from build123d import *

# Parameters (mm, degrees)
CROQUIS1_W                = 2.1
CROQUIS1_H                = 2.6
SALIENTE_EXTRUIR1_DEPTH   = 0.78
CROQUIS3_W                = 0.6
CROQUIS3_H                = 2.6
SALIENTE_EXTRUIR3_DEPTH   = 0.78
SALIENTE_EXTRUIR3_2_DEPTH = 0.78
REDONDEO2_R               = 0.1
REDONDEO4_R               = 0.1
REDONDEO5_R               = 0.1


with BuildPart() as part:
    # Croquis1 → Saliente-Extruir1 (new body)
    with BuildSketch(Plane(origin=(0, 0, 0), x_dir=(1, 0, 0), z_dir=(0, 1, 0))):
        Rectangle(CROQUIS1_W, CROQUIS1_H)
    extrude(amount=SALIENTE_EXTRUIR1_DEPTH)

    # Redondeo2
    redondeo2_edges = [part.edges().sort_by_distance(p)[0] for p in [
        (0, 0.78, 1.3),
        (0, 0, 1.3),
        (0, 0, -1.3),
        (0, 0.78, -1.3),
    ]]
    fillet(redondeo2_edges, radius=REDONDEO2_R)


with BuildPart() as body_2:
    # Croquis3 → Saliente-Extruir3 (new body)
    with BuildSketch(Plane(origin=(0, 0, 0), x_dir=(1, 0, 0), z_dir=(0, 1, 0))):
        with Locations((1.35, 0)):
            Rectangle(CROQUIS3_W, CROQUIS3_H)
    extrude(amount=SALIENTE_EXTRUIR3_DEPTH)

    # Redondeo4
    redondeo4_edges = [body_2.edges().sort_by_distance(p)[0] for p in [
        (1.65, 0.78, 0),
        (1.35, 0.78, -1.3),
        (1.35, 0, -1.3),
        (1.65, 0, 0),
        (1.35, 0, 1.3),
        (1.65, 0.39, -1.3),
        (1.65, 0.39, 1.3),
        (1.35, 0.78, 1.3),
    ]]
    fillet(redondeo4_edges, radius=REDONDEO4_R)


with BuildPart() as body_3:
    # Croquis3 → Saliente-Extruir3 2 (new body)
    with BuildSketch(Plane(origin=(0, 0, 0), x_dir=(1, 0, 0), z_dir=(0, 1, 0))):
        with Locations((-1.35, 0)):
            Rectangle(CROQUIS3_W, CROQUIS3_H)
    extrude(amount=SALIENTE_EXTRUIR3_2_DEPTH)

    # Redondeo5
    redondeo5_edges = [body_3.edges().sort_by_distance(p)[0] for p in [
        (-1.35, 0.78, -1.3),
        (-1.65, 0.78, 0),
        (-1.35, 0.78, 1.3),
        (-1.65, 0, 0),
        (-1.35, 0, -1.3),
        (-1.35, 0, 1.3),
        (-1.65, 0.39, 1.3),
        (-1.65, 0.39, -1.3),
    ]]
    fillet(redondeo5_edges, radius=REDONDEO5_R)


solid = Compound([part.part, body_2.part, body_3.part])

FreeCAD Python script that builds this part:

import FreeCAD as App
import Part
import Sketcher
from FreeCAD import Vector
Q = App.Units.Quantity


def edges_at(feature, points):
    """Names of the edges that pass closest to the given points."""
    edges = feature.Shape.Edges
    near = lambda p: min(range(len(edges)), key=lambda i: edges[i].distToShape(Part.Vertex(*p))[0])
    return sorted({f"Edge{near(p) + 1}" for p in points})

doc = App.newDocument("Part")
body = doc.addObject("PartDesign::Body", "Body")

sketch1 = body.newObject("Sketcher::SketchObject", "Sketch")
sketch1.AttachmentSupport = (doc.getObject("XZ_Plane"), [""])
sketch1.MapMode = "FlatFace"
sketch1.addGeometry(Part.LineSegment(Vector(-1.1, -1.3, 0), Vector(-1.1, 1.3, 0)), False)
sketch1.addGeometry(Part.LineSegment(Vector(-1.1, 1.3, 0), Vector(1.1, 1.3, 0)), False)
sketch1.addGeometry(Part.LineSegment(Vector(1.1, 1.3, 0), Vector(1.1, -1.3, 0)), False)
sketch1.addGeometry(Part.LineSegment(Vector(1.1, -1.3, 0), Vector(-1.1, -1.3, 0)), False)
sketch1.addConstraint(Sketcher.Constraint("Coincident", 0, 2, 1, 1))
sketch1.addConstraint(Sketcher.Constraint("Coincident", 1, 2, 2, 1))
sketch1.addConstraint(Sketcher.Constraint("Coincident", 2, 2, 3, 1))
sketch1.addConstraint(Sketcher.Constraint("Coincident", 3, 2, 0, 1))
sketch1.addConstraint(Sketcher.Constraint("Vertical", 0))
sketch1.addConstraint(Sketcher.Constraint("Horizontal", 1))
sketch1.addConstraint(Sketcher.Constraint("Vertical", 2))
sketch1.addConstraint(Sketcher.Constraint("Horizontal", 3))
sketch1.addConstraint(Sketcher.Constraint("Symmetric", 0, 2, 2, 2, -1, 1))
sketch1.addConstraint(Sketcher.Constraint("DistanceX", 1, 1, 1, 2, Q("2.1 mm")))
sketch1.addConstraint(Sketcher.Constraint("DistanceY", 0, 1, 0, 2, Q("2.6 mm")))
pad1 = body.newObject("PartDesign::Pad", "Pad")
pad1.Profile = sketch1
pad1.Length = 0.78
pad1.Reversed = True
doc.recompute()

fillet = body.newObject("PartDesign::Fillet", "Fillet")
fillet.Base = (pad1, edges_at(pad1, [
    (0, 0.78, 1.3),
    (0, 0, 1.3),
    (0, 0, -1.3),
    (0, 0.78, -1.3),
]))
fillet.Radius = 0.1
body2 = doc.addObject("PartDesign::Body", "Body001")

sketch2 = body2.newObject("Sketcher::SketchObject", "Sketch001")
sketch2.AttachmentSupport = (doc.getObject("XZ_Plane001"), [""])
sketch2.MapMode = "FlatFace"
sketch2.addGeometry(Part.LineSegment(Vector(1.1, -1.3, 0), Vector(1.1, 1.3, 0)), False)
sketch2.addGeometry(Part.LineSegment(Vector(1.1, 1.3, 0), Vector(1.6, 1.3, 0)), False)
sketch2.addGeometry(Part.LineSegment(Vector(1.6, 1.3, 0), Vector(1.6, -1.3, 0)), False)
sketch2.addGeometry(Part.LineSegment(Vector(1.6, -1.3, 0), Vector(1.1, -1.3, 0)), False)
sketch2.addConstraint(Sketcher.Constraint("Coincident", 0, 2, 1, 1))
sketch2.addConstraint(Sketcher.Constraint("Coincident", 1, 2, 2, 1))
sketch2.addConstraint(Sketcher.Constraint("Coincident", 2, 2, 3, 1))
sketch2.addConstraint(Sketcher.Constraint("Coincident", 3, 2, 0, 1))
sketch2.addConstraint(Sketcher.Constraint("Vertical", 0))
sketch2.addConstraint(Sketcher.Constraint("Horizontal", 1))
sketch2.addConstraint(Sketcher.Constraint("Vertical", 2))
sketch2.addConstraint(Sketcher.Constraint("Horizontal", 3))
sketch2.addConstraint(Sketcher.Constraint("DistanceX", 1, 1, 1, 2, Q("0.6 mm")))
sketch2.addConstraint(Sketcher.Constraint("DistanceY", 0, 1, 0, 2, Q("2.6 mm")))
sketch2.addConstraint(Sketcher.Constraint("DistanceY", -1, 1, 0, 2, Q("1.3 mm")))
sketch2.addConstraint(Sketcher.Constraint("DistanceX", -1, 1, 0, 2, Q("1.05 mm")))
pad2 = body2.newObject("PartDesign::Pad", "Pad001")
pad2.Profile = sketch2
pad2.Length = 0.78
pad2.Reversed = True
doc.recompute()

fillet2 = body2.newObject("PartDesign::Fillet", "Fillet001")
fillet2.Base = (pad2, edges_at(pad2, [
    (1.65, 0.78, 0),
    (1.35, 0.78, -1.3),
    (1.35, 0, -1.3),
    (1.65, 0, 0),
    (1.35, 0, 1.3),
    (1.65, 0.39, -1.3),
    (1.65, 0.39, 1.3),
    (1.35, 0.78, 1.3),
]))
fillet2.Radius = 0.1
body3 = doc.addObject("PartDesign::Body", "Body002")

sketch3 = body3.newObject("Sketcher::SketchObject", "Sketch002")
sketch3.AttachmentSupport = (doc.getObject("XZ_Plane002"), [""])
sketch3.MapMode = "FlatFace"
sketch3.addGeometry(Part.LineSegment(Vector(-1.6, -1.3, 0), Vector(-1.6, 1.3, 0)), False)
sketch3.addGeometry(Part.LineSegment(Vector(-1.6, 1.3, 0), Vector(-1.1, 1.3, 0)), False)
sketch3.addGeometry(Part.LineSegment(Vector(-1.1, 1.3, 0), Vector(-1.1, -1.3, 0)), False)
sketch3.addGeometry(Part.LineSegment(Vector(-1.1, -1.3, 0), Vector(-1.6, -1.3, 0)), False)
sketch3.addConstraint(Sketcher.Constraint("Coincident", 0, 2, 1, 1))
sketch3.addConstraint(Sketcher.Constraint("Coincident", 1, 2, 2, 1))
sketch3.addConstraint(Sketcher.Constraint("Coincident", 2, 2, 3, 1))
sketch3.addConstraint(Sketcher.Constraint("Coincident", 3, 2, 0, 1))
sketch3.addConstraint(Sketcher.Constraint("Vertical", 0))
sketch3.addConstraint(Sketcher.Constraint("Horizontal", 1))
sketch3.addConstraint(Sketcher.Constraint("Vertical", 2))
sketch3.addConstraint(Sketcher.Constraint("Horizontal", 3))
sketch3.addConstraint(Sketcher.Constraint("DistanceX", 1, 1, 1, 2, Q("0.6 mm")))
sketch3.addConstraint(Sketcher.Constraint("DistanceY", 0, 1, 0, 2, Q("2.6 mm")))
sketch3.addConstraint(Sketcher.Constraint("DistanceY", -1, 1, 0, 2, Q("1.3 mm")))
sketch3.addConstraint(Sketcher.Constraint("DistanceX", 0, 2, -1, 1, Q("1.65 mm")))
pad3 = body3.newObject("PartDesign::Pad", "Pad002")
pad3.Profile = sketch3
pad3.Length = 0.78
pad3.Reversed = True
doc.recompute()

fillet3 = body3.newObject("PartDesign::Fillet", "Fillet002")
fillet3.Base = (pad3, edges_at(pad3, [
    (-1.35, 0.78, -1.3),
    (-1.65, 0.78, 0),
    (-1.35, 0.78, 1.3),
    (-1.65, 0, 0),
    (-1.35, 0, -1.3),
    (-1.35, 0, 1.3),
    (-1.65, 0.39, 1.3),
    (-1.65, 0.39, -1.3),
]))
fillet3.Radius = 0.1

doc.recompute()
